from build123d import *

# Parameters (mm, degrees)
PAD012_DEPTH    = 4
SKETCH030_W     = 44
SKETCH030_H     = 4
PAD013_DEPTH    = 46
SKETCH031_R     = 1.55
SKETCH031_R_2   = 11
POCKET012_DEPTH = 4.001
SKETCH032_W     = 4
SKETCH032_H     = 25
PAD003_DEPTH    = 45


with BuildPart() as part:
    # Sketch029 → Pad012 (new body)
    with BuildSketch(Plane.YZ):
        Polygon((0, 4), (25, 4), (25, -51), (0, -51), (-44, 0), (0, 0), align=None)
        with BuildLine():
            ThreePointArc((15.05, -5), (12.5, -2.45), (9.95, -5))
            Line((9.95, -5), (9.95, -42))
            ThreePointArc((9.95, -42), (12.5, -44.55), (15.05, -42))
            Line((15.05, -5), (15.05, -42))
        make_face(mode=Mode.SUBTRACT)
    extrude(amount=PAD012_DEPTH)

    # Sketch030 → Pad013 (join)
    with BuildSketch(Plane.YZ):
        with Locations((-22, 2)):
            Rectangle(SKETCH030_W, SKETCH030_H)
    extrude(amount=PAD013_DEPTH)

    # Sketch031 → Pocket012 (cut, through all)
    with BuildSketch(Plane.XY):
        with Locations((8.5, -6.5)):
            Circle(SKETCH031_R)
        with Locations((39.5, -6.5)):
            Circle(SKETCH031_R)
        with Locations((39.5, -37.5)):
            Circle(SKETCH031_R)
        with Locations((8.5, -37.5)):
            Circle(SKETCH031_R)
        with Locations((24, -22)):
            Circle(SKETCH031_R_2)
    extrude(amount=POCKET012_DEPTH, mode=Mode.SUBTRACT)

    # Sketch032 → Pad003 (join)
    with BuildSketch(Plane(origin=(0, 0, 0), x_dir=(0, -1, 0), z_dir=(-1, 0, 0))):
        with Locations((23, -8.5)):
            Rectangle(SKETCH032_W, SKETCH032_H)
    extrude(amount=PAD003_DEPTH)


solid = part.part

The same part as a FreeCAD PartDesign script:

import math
import FreeCAD as App
import Part
import Sketcher
from FreeCAD import Vector
Q = App.Units.Quantity

doc = App.newDocument("Part")
body = doc.addObject("PartDesign::Body", "Body")

# Sketch on YZ plane
sketch1 = body.newObject("Sketcher::SketchObject", "Sketch")
sketch1.AttachmentSupport = (doc.getObject("YZ_Plane"), [""])
sketch1.MapMode = "FlatFace"
sketch1.addGeometry([
    Part.LineSegment(Vector(25, 4, 0), Vector(0, 4, 0)),  # 0
    Part.LineSegment(Vector(0, 4, 0), Vector(0, 0, 0)),  # 1
    Part.LineSegment(Vector(0, 0, 0), Vector(-44, 0, 0)),  # 2
    Part.LineSegment(Vector(-44, 0, 0), Vector(0, -51, 0)),  # 3
    Part.LineSegment(Vector(0, -51, 0), Vector(25, -51, 0)),  # 4
    Part.LineSegment(Vector(25, -51, 0), Vector(25, 4, 0)),  # 5
    Part.LineSegment(Vector(15.05, -5, 0), Vector(15.05, -42, 0)),  # 6
    Part.ArcOfCircle(Part.Circle(Vector(12.5, -42, 0), Vector(0, 0, 1), 2.55), math.radians(180), math.radians(360)),  # 7
    Part.LineSegment(Vector(9.95, -42, 0), Vector(9.95, -5, 0)),  # 8
    Part.ArcOfCircle(Part.Circle(Vector(12.5, -5, 0), Vector(0, 0, 1), 2.55), math.radians(0), math.radians(180)),  # 9
], False)
sketch1.addConstraint([
    Sketcher.Constraint("Coincident", 0, 2, 1, 1),
    Sketcher.Constraint("Coincident", 1, 2, 2, 1),
    Sketcher.Constraint("Coincident", 2, 2, 3, 1),
    Sketcher.Constraint("Coincident", 3, 2, 4, 1),
    Sketcher.Constraint("Coincident", 4, 2, 5, 1),
    Sketcher.Constraint("Coincident", 5, 2, 0, 1),
    Sketcher.Constraint("Tangent", 6, 2, 7, 2),
    Sketcher.Constraint("Tangent", 7, 1, 8, 1),
    Sketcher.Constraint("Tangent", 8, 2, 9, 2),
    Sketcher.Constraint("Tangent", 9, 1, 6, 1),
    Sketcher.Constraint("Horizontal", 0),
    Sketcher.Constraint("Vertical", 1),
    Sketcher.Constraint("Horizontal", 2),
    Sketcher.Constraint("Horizontal", 4),
    Sketcher.Constraint("Vertical", 5),
    Sketcher.Constraint("Vertical", 6),
    Sketcher.Constraint("Vertical", 8),
    Sketcher.Constraint("Coincident", 1, 2, -1, 1),
    Sketcher.Constraint("PointOnObject", 3, 2, -2),
    Sketcher.Constraint("DistanceX", 0, 2, 0, 1, Q("25 mm")),
    Sketcher.Constraint("DistanceX", 2, 2, 2, 1, Q("44 mm")),
    Sketcher.Constraint("DistanceY", 1, 2, 1, 1, Q("4 mm")),
    Sketcher.Constraint("DistanceY", 5, 1, 5, 2, Q("55 mm")),
    Sketcher.Constraint("DistanceY", 6, 2, 6, 1, Q("37 mm")),
    Sketcher.Constraint("Radius", 7, Q("2.55 mm")),
    Sketcher.Constraint("DistanceY", 7, 3, -1, 1, Q("42 mm")),
    Sketcher.Constraint("DistanceX", -1, 1, 7, 3, Q("12.5 mm")),
])
pad1 = body.newObject("PartDesign::Pad", "Pad")
pad1.Profile = sketch1
pad1.Length = 4

# Sketch on YZ plane
sketch2 = body.newObject("Sketcher::SketchObject", "Sketch001")
sketch2.AttachmentSupport = (doc.getObject("YZ_Plane"), [""])
sketch2.MapMode = "FlatFace"
sketch2.addGeometry([
    Part.LineSegment(Vector(-44, 4, 0), Vector(-44, 0, 0)),
    Part.LineSegment(Vector(-44, 0, 0), Vector(0, 0, 0)),
    Part.LineSegment(Vector(0, 0, 0), Vector(0, 4, 0)),
    Part.LineSegment(Vector(0, 4, 0), Vector(-44, 4, 0)),
], False)
sketch2.addConstraint([
    Sketcher.Constraint("Coincident", 0, 2, 1, 1),
    Sketcher.Constraint("Coincident", 1, 2, 2, 1),
    Sketcher.Constraint("Coincident", 2, 2, 3, 1),
    Sketcher.Constraint("Coincident", 3, 2, 0, 1),
    Sketcher.Constraint("Vertical", 0),
    Sketcher.Constraint("Horizontal", 1),
    Sketcher.Constraint("Vertical", 2),
    Sketcher.Constraint("Horizontal", 3),
    Sketcher.Constraint("Coincident", 1, 2, -1, 1),
    Sketcher.Constraint("DistanceX", 1, 1, 1, 2, Q("44 mm")),
    Sketcher.Constraint("DistanceY", 0, 2, 0, 1, Q("4 mm")),
])
pad2 = body.newObject("PartDesign::Pad", "Pad001")
pad2.Profile = sketch2
pad2.Length = 46

# Sketch on XY plane
sketch3 = body.newObject("Sketcher::SketchObject", "Sketch002")
sketch3.AttachmentSupport = (doc.getObject("XY_Plane"), [""])
sketch3.MapMode = "FlatFace"
sketch3.addGeometry([
    Part.Circle(Vector(8.5, -6.5, 0), Vector(0, 0, 1), 1.55),  # 0
    Part.Circle(Vector(39.5, -6.5, 0), Vector(0, 0, 1), 1.55),  # 1
    Part.Circle(Vector(39.5, -37.5, 0), Vector(0, 0, 1), 1.55),  # 2
    Part.Circle(Vector(8.5, -37.5, 0), Vector(0, 0, 1), 1.55),  # 3
    Part.Circle(Vector(24, -22, 0), Vector(0, 0, 1), 11),  # 4
], False)
sketch3.addConstraint([
    Sketcher.Constraint("Equal", 0, 1),
    Sketcher.Constraint("Equal", 1, 2),
    Sketcher.Constraint("Equal", 2, 3),
    Sketcher.Constraint("Horizontal", 0, 3, 1, 3),
    Sketcher.Constraint("Horizontal", 2, 3, 3, 3),
    Sketcher.Constraint("Vertical", 1, 3, 2, 3),
    Sketcher.Constraint("Vertical", 0, 3, 3, 3),
    Sketcher.Constraint("Diameter", 4, Q("22 mm")),
    Sketcher.Constraint("Diameter", 0, Q("3.1 mm")),
    Sketcher.Constraint("DistanceX", -1, 1, 4, 3, Q("24 mm")),
    Sketcher.Constraint("DistanceY", 4, 3, -1, 1, Q("22 mm")),
    Sketcher.Constraint("DistanceX", 0, 3, 1, 3, Q("31 mm")),
    Sketcher.Constraint("DistanceY", 2, 3, 1, 3, Q("31 mm")),
    Sketcher.Constraint("DistanceX", -1, 1, 0, 3, Q("8.5 mm")),
    Sketcher.Constraint("DistanceY", 0, 3, -1, 1, Q("6.5 mm")),
])
pocket1 = body.newObject("PartDesign::Pocket", "Pocket")
pocket1.Profile = sketch3
pocket1.Type = "ThroughAll"
pocket1.Reversed = True

# Sketch on YZ plane
sketch4 = body.newObject("Sketcher::SketchObject", "Sketch003")
sketch4.AttachmentSupport = (doc.getObject("YZ_Plane"), [""])
sketch4.MapMode = "FlatFace"
sketch4.addGeometry([
    Part.LineSegment(Vector(-21, 4, 0), Vector(-21, -21, 0)),
    Part.LineSegment(Vector(-21, -21, 0), Vector(-25, -21, 0)),
    Part.LineSegment(Vector(-25, -21, 0), Vector(-25, 4, 0)),
    Part.LineSegment(Vector(-25, 4, 0), Vector(-21, 4, 0)),
], False)
sketch4.addConstraint([
    Sketcher.Constraint("Coincident", 0, 2, 1, 1),
    Sketcher.Constraint("Coincident", 1, 2, 2, 1),
    Sketcher.Constraint("Coincident", 2, 2, 3, 1),
    Sketcher.Constraint("Coincident", 3, 2, 0, 1),
    Sketcher.Constraint("Vertical", 0),
    Sketcher.Constraint("Horizontal", 1),
    Sketcher.Constraint("Vertical", 2),
    Sketcher.Constraint("Horizontal", 3),
    Sketcher.Constraint("DistanceX", 1, 2, 1, 1, Q("4 mm")),
    Sketcher.Constraint("DistanceY", 0, 2, 0, 1, Q("25 mm")),
    Sketcher.Constraint("DistanceX", 0, 2, -1, 1, Q("21 mm")),
    Sketcher.Constraint("DistanceY", 0, 2, -1, 1, Q("21 mm")),
])
pad3 = body.newObject("PartDesign::Pad", "Pad002")
pad3.Profile = sketch4
pad3.Length = 45
pad3.Reversed = True

doc.recompute()
